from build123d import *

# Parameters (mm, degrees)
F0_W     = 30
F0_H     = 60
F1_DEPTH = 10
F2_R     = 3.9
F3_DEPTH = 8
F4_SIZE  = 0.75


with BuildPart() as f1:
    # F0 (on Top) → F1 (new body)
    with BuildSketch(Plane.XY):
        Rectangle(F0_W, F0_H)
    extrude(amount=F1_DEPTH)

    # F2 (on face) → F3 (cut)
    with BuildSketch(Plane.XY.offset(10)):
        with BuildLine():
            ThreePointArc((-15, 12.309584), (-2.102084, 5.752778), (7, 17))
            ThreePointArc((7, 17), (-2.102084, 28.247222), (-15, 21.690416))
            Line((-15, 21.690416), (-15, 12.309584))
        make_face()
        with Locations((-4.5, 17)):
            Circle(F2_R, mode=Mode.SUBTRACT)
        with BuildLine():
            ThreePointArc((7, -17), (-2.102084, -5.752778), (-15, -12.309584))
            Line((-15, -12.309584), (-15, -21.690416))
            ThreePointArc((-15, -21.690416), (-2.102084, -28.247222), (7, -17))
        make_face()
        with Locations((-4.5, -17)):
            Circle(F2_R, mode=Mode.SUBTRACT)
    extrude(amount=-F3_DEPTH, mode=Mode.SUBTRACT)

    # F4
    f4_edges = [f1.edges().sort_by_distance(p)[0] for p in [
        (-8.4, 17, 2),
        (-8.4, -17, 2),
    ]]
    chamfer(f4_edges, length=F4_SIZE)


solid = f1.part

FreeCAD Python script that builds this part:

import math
import FreeCAD as App
import Part
import Sketcher


def edges_at(feature, points):
    """Names of the edges that pass closest to the given points."""
    edges = feature.Shape.Edges
    near = lambda p: min(range(len(edges)), key=lambda i: edges[i].distToShape(Part.Vertex(*p))[0])
    return sorted({f"Edge{near(p) + 1}" for p in points})


def add_polygon(sketch, points):
    """Adds a closed chain of lines whose ends are joined by coincident constraints."""
    first, n = sketch.GeometryCount, len(points)
    for a, b in zip(points, points[1:] + points[:1]):
        sketch.addGeometry(Part.LineSegment(App.Vector(*a, 0), App.Vector(*b, 0)), False)
    for i in range(n):
        sketch.addConstraint(Sketcher.Constraint("Coincident", first + i, 2, first + (i + 1) % n, 1))

doc = App.newDocument("Part")
body = doc.addObject("PartDesign::Body", "Body")

sketch1 = body.newObject("Sketcher::SketchObject", "Sketch")
sketch1.AttachmentSupport = (doc.getObject("XY_Plane"), [""])
sketch1.MapMode = "FlatFace"
add_polygon(sketch1, [(-15, 30), (-15, -30), (15, -30), (15, 30)])
sketch1.addConstraint([
    Sketcher.Constraint("Vertical", 0),
    Sketcher.Constraint("Horizontal", 1),
    Sketcher.Constraint("Vertical", 2),
    Sketcher.Constraint("Horizontal", 3),
    Sketcher.Constraint("Symmetric", 0, 2, 2, 2, -1, 1),
    Sketcher.Constraint("DistanceX", 1, 1, 1, 2, 30.0),
    Sketcher.Constraint("DistanceY", 0, 2, 0, 1, 60.0),
])
pad1 = body.newObject("PartDesign::Pad", "Pad")
pad1.Profile = sketch1
pad1.Length = 10

sketch2 = body.newObject("Sketcher::SketchObject", "Sketch001")
sketch2.AttachmentSupport = (doc.getObject("XY_Plane"), [""])
sketch2.MapMode = "FlatFace"
sketch2.AttachmentOffset = App.Placement(App.Vector(0, 0, 10), App.Rotation())
sketch2.addGeometry([
    Part.ArcOfCircle(Part.Circle(App.Vector(-4.5, 17, 0), App.Vector(0, 0, 1), 11.5), math.radians(-156), math.radians(0)),
    Part.ArcOfCircle(Part.Circle(App.Vector(-4.5, 17, 0), App.Vector(0, 0, 1), 11.5), math.radians(0), math.radians(156)),
    Part.LineSegment(App.Vector(-15, 21.7, 0), App.Vector(-15, 12.3, 0)),
    Part.Circle(App.Vector(-4.5, 17, 0), App.Vector(0, 0, 1), 3.9),
    Part.ArcOfCircle(Part.Circle(App.Vector(-4.5, -17, 0), App.Vector(0, 0, 1), 11.5), math.radians(0), math.radians(156)),
    Part.LineSegment(App.Vector(-15, -12.3, 0), App.Vector(-15, -21.7, 0)),
    Part.ArcOfCircle(Part.Circle(App.Vector(-4.5, -17, 0), App.Vector(0, 0, 1), 11.5), math.radians(-156), math.radians(0)),
    Part.Circle(App.Vector(-4.5, -17, 0), App.Vector(0, 0, 1), 3.9),
], False)
sketch2.addConstraint([
    Sketcher.Constraint("Tangent", 0, 2, 1, 1),
    Sketcher.Constraint("Coincident", 1, 2, 2, 1),
    Sketcher.Constraint("Coincident", 2, 2, 0, 1),
    Sketcher.Constraint("Coincident", 4, 2, 5, 1),
    Sketcher.Constraint("Coincident", 5, 2, 6, 1),
    Sketcher.Constraint("Tangent", 6, 2, 4, 1),
    Sketcher.Constraint("Vertical", 2),
    Sketcher.Constraint("Vertical", 5),
    Sketcher.Constraint("Coincident", 3, 3, 0, 3),
    Sketcher.Constraint("Coincident", 7, 3, 4, 3),
    Sketcher.Constraint("Equal", 0, 1),
    Sketcher.Constraint("Equal", 1, 4),
    Sketcher.Constraint("Equal", 4, 6),
    Sketcher.Constraint("Equal", 3, 7),
    Sketcher.Constraint("Symmetric", 0, 3, 4, 3, -1),
    Sketcher.Constraint("Horizontal", 3, 3, 0, 2),
    Sketcher.Constraint("Horizontal", 7, 3, 6, 2),
    Sketcher.Constraint("Vertical", 2, 2, 4, 2),
    Sketcher.Constraint("Diameter", 3, 7.8),
    Sketcher.Constraint("Radius", 0, 11.5),
    Sketcher.Constraint("DistanceY", -1, 1, 0, 3, 17.0),
    Sketcher.Constraint("DistanceX", -1, 1, 0, 2, 7.0),
    Sketcher.Constraint("DistanceX", 1, 2, -1, 1, 15.0),
])
pocket1 = body.newObject("PartDesign::Pocket", "Pocket")
pocket1.Profile = sketch2
pocket1.Length = 8
doc.recompute()

chamfer = body.newObject("PartDesign::Chamfer", "Chamfer")
chamfer.Base = (pocket1, edges_at(pocket1, [(-8.4, 17, 2), (-8.4, -17, 2)]))
chamfer.Size = 0.75

doc.recompute()
